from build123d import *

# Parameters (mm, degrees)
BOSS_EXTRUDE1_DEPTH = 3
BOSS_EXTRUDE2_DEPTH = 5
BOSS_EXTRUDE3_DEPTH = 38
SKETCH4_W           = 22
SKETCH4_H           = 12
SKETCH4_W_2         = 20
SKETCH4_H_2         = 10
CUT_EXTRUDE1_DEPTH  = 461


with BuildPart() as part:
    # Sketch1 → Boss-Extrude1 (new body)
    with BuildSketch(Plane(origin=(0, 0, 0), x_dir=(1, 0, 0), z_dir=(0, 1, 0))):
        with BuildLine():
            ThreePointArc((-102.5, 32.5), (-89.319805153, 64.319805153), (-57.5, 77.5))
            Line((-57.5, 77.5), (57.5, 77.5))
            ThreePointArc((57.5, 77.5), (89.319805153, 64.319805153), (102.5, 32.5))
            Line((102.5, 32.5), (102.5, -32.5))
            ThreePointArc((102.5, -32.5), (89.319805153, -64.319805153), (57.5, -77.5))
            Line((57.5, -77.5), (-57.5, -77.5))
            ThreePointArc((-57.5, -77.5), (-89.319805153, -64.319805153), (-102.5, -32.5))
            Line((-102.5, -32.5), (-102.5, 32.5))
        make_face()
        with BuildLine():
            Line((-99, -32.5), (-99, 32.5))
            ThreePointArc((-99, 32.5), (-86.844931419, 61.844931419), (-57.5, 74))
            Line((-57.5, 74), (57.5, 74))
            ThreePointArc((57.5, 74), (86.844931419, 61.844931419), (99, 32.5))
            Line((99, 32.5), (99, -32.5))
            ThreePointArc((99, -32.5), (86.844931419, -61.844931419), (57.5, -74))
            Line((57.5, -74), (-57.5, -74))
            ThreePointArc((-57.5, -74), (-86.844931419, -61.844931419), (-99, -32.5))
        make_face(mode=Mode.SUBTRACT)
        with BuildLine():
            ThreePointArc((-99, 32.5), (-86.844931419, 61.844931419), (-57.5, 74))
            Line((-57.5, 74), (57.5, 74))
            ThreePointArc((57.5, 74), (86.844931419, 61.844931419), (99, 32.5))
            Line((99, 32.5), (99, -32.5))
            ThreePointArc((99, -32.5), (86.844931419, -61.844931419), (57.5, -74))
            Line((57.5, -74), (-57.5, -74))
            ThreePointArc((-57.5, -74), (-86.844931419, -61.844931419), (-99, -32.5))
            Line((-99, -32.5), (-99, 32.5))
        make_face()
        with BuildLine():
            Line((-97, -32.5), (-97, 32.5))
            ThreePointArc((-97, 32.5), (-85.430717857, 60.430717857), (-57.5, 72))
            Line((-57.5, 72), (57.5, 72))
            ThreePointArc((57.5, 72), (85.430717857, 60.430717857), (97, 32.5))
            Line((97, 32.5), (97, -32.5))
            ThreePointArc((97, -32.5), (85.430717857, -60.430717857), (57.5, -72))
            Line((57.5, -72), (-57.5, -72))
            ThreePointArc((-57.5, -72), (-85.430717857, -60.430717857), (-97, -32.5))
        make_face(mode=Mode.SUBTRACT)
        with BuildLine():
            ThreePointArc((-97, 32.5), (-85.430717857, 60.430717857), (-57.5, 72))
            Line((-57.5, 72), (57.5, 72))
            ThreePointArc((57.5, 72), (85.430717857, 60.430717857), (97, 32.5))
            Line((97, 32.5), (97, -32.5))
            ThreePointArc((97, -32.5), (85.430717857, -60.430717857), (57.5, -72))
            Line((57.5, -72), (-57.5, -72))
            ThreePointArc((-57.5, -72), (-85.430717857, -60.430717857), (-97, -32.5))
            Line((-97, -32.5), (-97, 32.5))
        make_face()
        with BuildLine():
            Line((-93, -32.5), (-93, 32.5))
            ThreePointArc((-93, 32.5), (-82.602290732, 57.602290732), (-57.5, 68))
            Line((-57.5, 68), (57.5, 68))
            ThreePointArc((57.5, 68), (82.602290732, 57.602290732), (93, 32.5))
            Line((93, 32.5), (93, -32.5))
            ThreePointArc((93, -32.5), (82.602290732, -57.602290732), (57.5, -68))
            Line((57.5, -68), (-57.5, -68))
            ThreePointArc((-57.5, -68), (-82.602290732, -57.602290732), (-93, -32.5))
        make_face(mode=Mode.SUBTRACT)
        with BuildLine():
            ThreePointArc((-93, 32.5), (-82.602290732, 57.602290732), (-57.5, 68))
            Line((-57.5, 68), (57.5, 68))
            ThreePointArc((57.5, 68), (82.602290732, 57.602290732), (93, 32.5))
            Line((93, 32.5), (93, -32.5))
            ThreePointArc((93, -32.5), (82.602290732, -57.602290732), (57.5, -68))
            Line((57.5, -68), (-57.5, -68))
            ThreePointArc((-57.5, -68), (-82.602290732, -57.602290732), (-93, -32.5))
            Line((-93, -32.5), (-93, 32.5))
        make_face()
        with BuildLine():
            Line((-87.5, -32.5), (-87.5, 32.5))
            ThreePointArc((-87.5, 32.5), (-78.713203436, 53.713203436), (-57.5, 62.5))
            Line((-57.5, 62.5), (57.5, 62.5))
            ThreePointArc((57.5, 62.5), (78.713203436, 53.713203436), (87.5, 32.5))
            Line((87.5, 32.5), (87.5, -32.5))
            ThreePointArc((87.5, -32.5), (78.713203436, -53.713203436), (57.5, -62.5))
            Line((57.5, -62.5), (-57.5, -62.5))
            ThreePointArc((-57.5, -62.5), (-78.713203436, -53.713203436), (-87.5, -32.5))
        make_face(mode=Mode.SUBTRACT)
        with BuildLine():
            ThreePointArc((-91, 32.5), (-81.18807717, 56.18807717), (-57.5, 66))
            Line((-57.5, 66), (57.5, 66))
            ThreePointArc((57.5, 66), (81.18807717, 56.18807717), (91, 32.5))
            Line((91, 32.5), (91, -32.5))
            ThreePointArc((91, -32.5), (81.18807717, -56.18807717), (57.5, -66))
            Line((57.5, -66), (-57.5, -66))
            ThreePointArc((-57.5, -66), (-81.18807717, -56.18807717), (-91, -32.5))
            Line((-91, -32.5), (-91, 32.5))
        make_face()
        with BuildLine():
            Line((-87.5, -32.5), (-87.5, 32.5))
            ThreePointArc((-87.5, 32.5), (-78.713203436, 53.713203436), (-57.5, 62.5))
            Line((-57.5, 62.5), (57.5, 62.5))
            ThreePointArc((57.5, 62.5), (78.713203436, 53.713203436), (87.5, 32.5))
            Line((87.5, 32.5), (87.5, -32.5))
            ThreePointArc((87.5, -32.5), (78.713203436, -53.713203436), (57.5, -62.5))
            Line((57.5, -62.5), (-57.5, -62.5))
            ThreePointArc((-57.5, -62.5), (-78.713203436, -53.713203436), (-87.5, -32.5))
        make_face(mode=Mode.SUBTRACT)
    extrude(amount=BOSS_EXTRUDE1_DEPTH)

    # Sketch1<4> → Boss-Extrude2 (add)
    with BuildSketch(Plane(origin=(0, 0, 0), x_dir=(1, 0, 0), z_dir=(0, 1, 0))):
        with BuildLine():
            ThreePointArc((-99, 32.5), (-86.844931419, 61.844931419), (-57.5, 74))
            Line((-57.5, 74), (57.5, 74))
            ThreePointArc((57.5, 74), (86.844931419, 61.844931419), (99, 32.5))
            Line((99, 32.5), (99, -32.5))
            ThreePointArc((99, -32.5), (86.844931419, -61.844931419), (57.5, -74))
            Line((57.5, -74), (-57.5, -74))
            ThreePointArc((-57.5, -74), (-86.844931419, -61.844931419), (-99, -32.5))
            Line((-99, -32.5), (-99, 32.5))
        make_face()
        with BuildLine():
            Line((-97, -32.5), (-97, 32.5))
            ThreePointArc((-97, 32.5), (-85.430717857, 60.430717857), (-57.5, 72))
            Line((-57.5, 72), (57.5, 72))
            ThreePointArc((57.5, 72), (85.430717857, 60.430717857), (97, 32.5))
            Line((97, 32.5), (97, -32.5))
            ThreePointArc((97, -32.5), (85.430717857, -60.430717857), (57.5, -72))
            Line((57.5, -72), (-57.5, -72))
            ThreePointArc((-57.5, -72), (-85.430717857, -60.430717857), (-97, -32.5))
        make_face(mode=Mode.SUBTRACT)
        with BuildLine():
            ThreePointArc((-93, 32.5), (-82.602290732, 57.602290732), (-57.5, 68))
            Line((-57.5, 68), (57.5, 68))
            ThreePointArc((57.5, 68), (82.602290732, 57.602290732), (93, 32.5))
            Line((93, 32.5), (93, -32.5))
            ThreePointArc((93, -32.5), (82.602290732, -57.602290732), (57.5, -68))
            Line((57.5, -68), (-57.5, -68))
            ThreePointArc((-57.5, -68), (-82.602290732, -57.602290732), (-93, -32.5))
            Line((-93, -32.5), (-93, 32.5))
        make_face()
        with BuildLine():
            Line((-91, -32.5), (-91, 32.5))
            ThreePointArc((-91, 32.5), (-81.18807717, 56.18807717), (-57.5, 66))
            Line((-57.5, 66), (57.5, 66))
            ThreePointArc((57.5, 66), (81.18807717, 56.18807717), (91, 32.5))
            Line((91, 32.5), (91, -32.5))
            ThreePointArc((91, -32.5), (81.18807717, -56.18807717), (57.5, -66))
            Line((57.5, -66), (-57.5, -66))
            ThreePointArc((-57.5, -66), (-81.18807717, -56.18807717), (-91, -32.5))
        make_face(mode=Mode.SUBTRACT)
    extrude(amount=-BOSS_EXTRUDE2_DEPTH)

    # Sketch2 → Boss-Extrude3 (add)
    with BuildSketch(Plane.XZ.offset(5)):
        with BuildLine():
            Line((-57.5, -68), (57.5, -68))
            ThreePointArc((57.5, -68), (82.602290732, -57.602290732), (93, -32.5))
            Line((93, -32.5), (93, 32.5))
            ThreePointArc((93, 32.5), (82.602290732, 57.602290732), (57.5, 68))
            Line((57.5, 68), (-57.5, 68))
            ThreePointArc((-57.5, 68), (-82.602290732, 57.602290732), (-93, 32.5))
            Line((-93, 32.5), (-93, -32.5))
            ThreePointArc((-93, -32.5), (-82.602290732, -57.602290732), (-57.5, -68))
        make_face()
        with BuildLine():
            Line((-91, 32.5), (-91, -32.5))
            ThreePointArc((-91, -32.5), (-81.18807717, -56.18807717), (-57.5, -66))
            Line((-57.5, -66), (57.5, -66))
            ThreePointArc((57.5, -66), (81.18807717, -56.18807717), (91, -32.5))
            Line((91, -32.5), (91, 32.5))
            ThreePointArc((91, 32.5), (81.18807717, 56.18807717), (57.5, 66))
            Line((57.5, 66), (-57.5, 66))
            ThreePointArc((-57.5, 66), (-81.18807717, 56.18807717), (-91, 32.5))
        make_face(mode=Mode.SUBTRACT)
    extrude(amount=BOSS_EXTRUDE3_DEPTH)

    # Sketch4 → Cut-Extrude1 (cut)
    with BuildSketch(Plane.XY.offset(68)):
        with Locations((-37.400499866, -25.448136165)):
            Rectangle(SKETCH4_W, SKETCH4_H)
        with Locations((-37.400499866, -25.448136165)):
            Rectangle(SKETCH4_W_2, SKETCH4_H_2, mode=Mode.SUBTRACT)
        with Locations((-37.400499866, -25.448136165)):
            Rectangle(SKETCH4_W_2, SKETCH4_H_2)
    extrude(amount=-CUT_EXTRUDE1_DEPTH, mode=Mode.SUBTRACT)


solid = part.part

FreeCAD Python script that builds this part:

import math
import FreeCAD as App
import Part
import Sketcher

V = App.Vector
Q = App.Units.Quantity

doc = App.newDocument("Part")
params = doc.addObject("Spreadsheet::Sheet", "Params")
for row, (alias, value) in enumerate([
    ("sketch1_radius", "45 mm"),
    ("sketch1_radius2", "30 mm"),
    ("sketch1_width", "115 mm"),
    ("sketch1_height", "65 mm"),
    ("pad1_length", "3 mm"),
    ("sketch2_radius", "41.5 mm"),
    ("sketch2_radius2", "39.5 mm"),
    ("sketch2_radius3", "35.5 mm"),
    ("sketch2_radius4", "33.5 mm"),
    ("sketch2_width", "115 mm"),
    ("pad2_length", "5 mm"),
    ("sketch3_radius", "35.5 mm"),
    ("sketch3_radius2", "33.5 mm"),
    ("sketch3_width", "115 mm"),
    ("sketch3_height", "65 mm"),
    ("pad3_length", "38 mm"),
    ("sketch4_width", "22 mm"),
    ("sketch4_height", "12 mm"),
    ("pocket1_length", "461 mm"),
], start=1):
    params.set(f"A{row}", alias)
    params.set(f"B{row}", "=" + value)
    params.setAlias(f"B{row}", alias)

body = doc.addObject("PartDesign::Body", "Body")

# Sketch on XZ plane
sketch1 = body.newObject("Sketcher::SketchObject", "Sketch")
sketch1.AttachmentSupport = (doc.getObject("XZ_Plane"), [""])
sketch1.MapMode = "FlatFace"
sketch1.addGeometry([
    Part.ArcOfCircle(Part.Circle(V(-57, -32, 0), V(0, 0, 1), 45), math.radians(-180), math.radians(-90)),  # 0
    Part.LineSegment(V(-102, -32, 0), V(-102, 32, 0)),  # 1
    Part.ArcOfCircle(Part.Circle(V(-57, 32, 0), V(0, 0, 1), 45), math.radians(90), math.radians(180)),  # 2
    Part.LineSegment(V(-58, 78, 0), V(58, 78, 0)),  # 3
    Part.ArcOfCircle(Part.Circle(V(57, 32, 0), V(0, 0, 1), 45), math.radians(0), math.radians(90)),  # 4
    Part.LineSegment(V(102, 32, 0), V(102, -32, 0)),  # 5
    Part.ArcOfCircle(Part.Circle(V(57, -32, 0), V(0, 0, 1), 45), math.radians(-90), math.radians(0)),  # 6
    Part.LineSegment(V(58, -78, 0), V(-58, -78, 0)),  # 7
    Part.LineSegment(V(-88, 32, 0), V(-88, -32, 0)),  # 8
    Part.ArcOfCircle(Part.Circle(V(-58, -33, 0), V(0, 0, 1), 30), math.radians(180), math.radians(270)),  # 9
    Part.LineSegment(V(-58, -62, 0), V(58, -62, 0)),  # 10
    Part.ArcOfCircle(Part.Circle(V(58, -33, 0), V(0, 0, 1), 30), math.radians(-90), math.radians(0)),  # 11
    Part.LineSegment(V(88, -32, 0), V(88, 32, 0)),  # 12
    Part.ArcOfCircle(Part.Circle(V(58, 33, 0), V(0, 0, 1), 30), math.radians(0), math.radians(90)),  # 13
    Part.LineSegment(V(58, 62, 0), V(-58, 62, 0)),  # 14
    Part.ArcOfCircle(Part.Circle(V(-58, 33, 0), V(0, 0, 1), 30), math.radians(90), math.radians(180)),  # 15
], False)
sketch1.addConstraint([
    Sketcher.Constraint("Tangent", 0, 1, 1, 1),
    Sketcher.Constraint("Tangent", 1, 2, 2, 2),
    Sketcher.Constraint("Tangent", 2, 1, 3, 1),
    Sketcher.Constraint("Tangent", 3, 2, 4, 2),
    Sketcher.Constraint("Tangent", 4, 1, 5, 1),
    Sketcher.Constraint("Tangent", 5, 2, 6, 2),
    Sketcher.Constraint("Tangent", 6, 1, 7, 1),
    Sketcher.Constraint("Tangent", 7, 2, 0, 2),
    Sketcher.Constraint("Tangent", 8, 2, 9, 1),
    Sketcher.Constraint("Tangent", 9, 2, 10, 1),
    Sketcher.Constraint("Tangent", 10, 2, 11, 1),
    Sketcher.Constraint("Tangent", 11, 2, 12, 1),
    Sketcher.Constraint("Tangent", 12, 2, 13, 1),
    Sketcher.Constraint("Tangent", 13, 2, 14, 1),
    Sketcher.Constraint("Tangent", 14, 2, 15, 1),
    Sketcher.Constraint("Tangent", 15, 2, 8, 1),
    Sketcher.Constraint("Vertical", 1),
    Sketcher.Constraint("Horizontal", 3),
    Sketcher.Constraint("Vertical", 5),
    Sketcher.Constraint("Horizontal", 7),
    Sketcher.Constraint("Vertical", 8),
    Sketcher.Constraint("Horizontal", 10),
    Sketcher.Constraint("Vertical", 12),
    Sketcher.Constraint("Horizontal", 14),
    Sketcher.Constraint("Coincident", 9, 3, 0, 3),
    Sketcher.Constraint("Coincident", 11, 3, 6, 3),
    Sketcher.Constraint("Coincident", 13, 3, 4, 3),
    Sketcher.Constraint("Equal", 0, 2),
    Sketcher.Constraint("Equal", 2, 4),
    Sketcher.Constraint("Equal", 4, 6),
    Sketcher.Constraint("Equal", 13, 15),
    Sketcher.Constraint("Symmetric", 0, 3, 4, 3, -1, 1),
    Sketcher.Constraint("Radius", 0, Q("45 mm")),
    Sketcher.Constraint("Radius", 9, Q("30 mm")),
    Sketcher.Constraint("DistanceX", 3, 1, 3, 2, Q("115 mm")),
    Sketcher.Constraint("DistanceY", 1, 1, 1, 2, Q("65 mm")),
])
sketch1.setExpression("Constraints[32]", "Params.sketch1_radius")
sketch1.setExpression("Constraints[33]", "Params.sketch1_radius2")
sketch1.setExpression("Constraints[34]", "Params.sketch1_width")
sketch1.setExpression("Constraints[35]", "Params.sketch1_height")
pad1 = body.newObject("PartDesign::Pad", "Pad")
pad1.Profile = sketch1
pad1.setExpression("Length", "Params.pad1_length")
pad1.Reversed = True

# Sketch on XZ plane
sketch2 = body.newObject("Sketcher::SketchObject", "Sketch001")
sketch2.AttachmentSupport = (doc.getObject("XZ_Plane"), [""])
sketch2.MapMode = "FlatFace"
sketch2.addGeometry([
    Part.ArcOfCircle(Part.Circle(V(-57, -32, 0), V(0, 0, 1), 42), math.radians(-180), math.radians(-90)),  # 0
    Part.LineSegment(V(-99, -32, 0), V(-99, 32, 0)),  # 1
    Part.ArcOfCircle(Part.Circle(V(-57, 32, 0), V(0, 0, 1), 42), math.radians(90), math.radians(180)),  # 2
    Part.LineSegment(V(-58, 74, 0), V(58, 74, 0)),  # 3
    Part.ArcOfCircle(Part.Circle(V(57, 32, 0), V(0, 0, 1), 42), math.radians(0), math.radians(90)),  # 4
    Part.LineSegment(V(99, 32, 0), V(99, -32, 0)),  # 5
    Part.ArcOfCircle(Part.Circle(V(57, -32, 0), V(0, 0, 1), 42), math.radians(-90), math.radians(0)),  # 6
    Part.LineSegment(V(58, -74, 0), V(-58, -74, 0)),  # 7
    Part.LineSegment(V(-97, 32, 0), V(-97, -32, 0)),  # 8
    Part.ArcOfCircle(Part.Circle(V(-58, -32, 0), V(0, 0, 1), 40), math.radians(180), math.radians(270)),  # 9
    Part.LineSegment(V(-58, -72, 0), V(58, -72, 0)),  # 10
    Part.ArcOfCircle(Part.Circle(V(58, -32, 0), V(0, 0, 1), 40), math.radians(-90), math.radians(0)),  # 11
    Part.LineSegment(V(97, -32, 0), V(97, 32, 0)),  # 12
    Part.ArcOfCircle(Part.Circle(V(58, 32, 0), V(0, 0, 1), 40), math.radians(0), math.radians(90)),  # 13
    Part.LineSegment(V(58, 72, 0), V(-58, 72, 0)),  # 14
    Part.ArcOfCircle(Part.Circle(V(-58, 32, 0), V(0, 0, 1), 40), math.radians(90), math.radians(180)),  # 15
    Part.ArcOfCircle(Part.Circle(V(-58, -32, 0), V(0, 0, 1), 36), math.radians(180), math.radians(270)),  # 16
    Part.LineSegment(V(-93, -32, 0), V(-93, 32, 0)),  # 17
    Part.ArcOfCircle(Part.Circle(V(-58, 32, 0), V(0, 0, 1), 36), math.radians(90), math.radians(180)),  # 18
    Part.LineSegment(V(-58, 68, 0), V(58, 68, 0)),  # 19
    Part.ArcOfCircle(Part.Circle(V(58, 32, 0), V(0, 0, 1), 36), math.radians(0), math.radians(90)),  # 20
    Part.LineSegment(V(93, 32, 0), V(93, -32, 0)),  # 21
    Part.ArcOfCircle(Part.Circle(V(58, -32, 0), V(0, 0, 1), 36), math.radians(-90), math.radians(0)),  # 22
    Part.LineSegment(V(58, -68, 0), V(-58, -68, 0)),  # 23
    Part.LineSegment(V(-91, 32, 0), V(-91, -32, 0)),  # 24
    Part.ArcOfCircle(Part.Circle(V(-58, -33, 0), V(0, 0, 1), 33), math.radians(180), math.radians(270)),  # 25
    Part.LineSegment(V(-58, -66, 0), V(58, -66, 0)),  # 26
    Part.ArcOfCircle(Part.Circle(V(58, -33, 0), V(0, 0, 1), 33), math.radians(-90), math.radians(0)),  # 27
    Part.LineSegment(V(91, -32, 0), V(91, 32, 0)),  # 28
    Part.ArcOfCircle(Part.Circle(V(58, 33, 0), V(0, 0, 1), 33), math.radians(0), math.radians(90)),  # 29
    Part.LineSegment(V(58, 66, 0), V(-58, 66, 0)),  # 30
    Part.ArcOfCircle(Part.Circle(V(-58, 33, 0), V(0, 0, 1), 33), math.radians(90), math.radians(180)),  # 31
], False)
sketch2.addConstraint([
    Sketcher.Constraint("Tangent", 0, 1, 1, 1),
    Sketcher.Constraint("Tangent", 1, 2, 2, 2),
    Sketcher.Constraint("Tangent", 2, 1, 3, 1),
    Sketcher.Constraint("Tangent", 3, 2, 4, 2),
    Sketcher.Constraint("Tangent", 4, 1, 5, 1),
    Sketcher.Constraint("Tangent", 5, 2, 6, 2),
    Sketcher.Constraint("Tangent", 6, 1, 7, 1),
    Sketcher.Constraint("Tangent", 7, 2, 0, 2),
    Sketcher.Constraint("Tangent", 8, 2, 9, 1),
    Sketcher.Constraint("Tangent", 9, 2, 10, 1),
    Sketcher.Constraint("Tangent", 10, 2, 11, 1),
    Sketcher.Constraint("Tangent", 11, 2, 12, 1),
    Sketcher.Constraint("Tangent", 12, 2, 13, 1),
    Sketcher.Constraint("Tangent", 13, 2, 14, 1),
    Sketcher.Constraint("Tangent", 14, 2, 15, 1),
    Sketcher.Constraint("Tangent", 15, 2, 8, 1),
    Sketcher.Constraint("Tangent", 16, 1, 17, 1),
    Sketcher.Constraint("Tangent", 17, 2, 18, 2),
    Sketcher.Constraint("Tangent", 18, 1, 19, 1),
    Sketcher.Constraint("Tangent", 19, 2, 20, 2),
    Sketcher.Constraint("Tangent", 20, 1, 21, 1),
    Sketcher.Constraint("Tangent", 21, 2, 22, 2),
    Sketcher.Constraint("Tangent", 22, 1, 23, 1),
    Sketcher.Constraint("Tangent", 23, 2, 16, 2),
    Sketcher.Constraint("Tangent", 24, 2, 25, 1),
    Sketcher.Constraint("Tangent", 25, 2, 26, 1),
    Sketcher.Constraint("Tangent", 26, 2, 27, 1),
    Sketcher.Constraint("Tangent", 27, 2, 28, 1),
    Sketcher.Constraint("Tangent", 28, 2, 29, 1),
    Sketcher.Constraint("Tangent", 29, 2, 30, 1),
    Sketcher.Constraint("Tangent", 30, 2, 31, 1),
    Sketcher.Constraint("Tangent", 31, 2, 24, 1),
    Sketcher.Constraint("Vertical", 1),
    Sketcher.Constraint("Horizontal", 3),
    Sketcher.Constraint("Vertical", 5),
    Sketcher.Constraint("Horizontal", 7),
    Sketcher.Constraint("Vertical", 8),
    Sketcher.Constraint("Horizontal", 10),
    Sketcher.Constraint("Vertical", 12),
    Sketcher.Constraint("Horizontal", 14),
    Sketcher.Constraint("Vertical", 17),
    Sketcher.Constraint("Horizontal", 19),
    Sketcher.Constraint("Vertical", 21),
    Sketcher.Constraint("Horizontal", 23),
    Sketcher.Constraint("Vertical", 24),
    Sketcher.Constraint("Horizontal", 26),
    Sketcher.Constraint("Vertical", 28),
    Sketcher.Constraint("Horizontal", 30),
    Sketcher.Constraint("Coincident", 9, 3, 0, 3),
    Sketcher.Constraint("Coincident", 11, 3, 6, 3),
    Sketcher.Constraint("Coincident", 13, 3, 4, 3),
    Sketcher.Constraint("Coincident", 16, 3, 0, 3),
    Sketcher.Constraint("Coincident", 18, 3, 2, 3),
    Sketcher.Constraint("Coincident", 20, 3, 4, 3),
    Sketcher.Constraint("Coincident", 25, 3, 0, 3),
    Sketcher.Constraint("Coincident", 27, 3, 6, 3),
    Sketcher.Constraint("Coincident", 29, 3, 4, 3),
    Sketcher.Constraint("Equal", 0, 2),
    Sketcher.Constraint("Equal", 2, 4),
    Sketcher.Constraint("Equal", 4, 6),
    Sketcher.Constraint("Equal", 13, 15),
    Sketcher.Constraint("Equal", 20, 22),
    Sketcher.Constraint("Equal", 29, 31),
    Sketcher.Constraint("Symmetric", 0, 3, 4, 3, -1, 1),
    Sketcher.Constraint("Radius", 0, Q("41.5 mm")),
    Sketcher.Constraint("Radius", 9, Q("39.5 mm")),
    Sketcher.Constraint("Radius", 16, Q("35.5 mm")),
    Sketcher.Constraint("Radius", 25, Q("33.5 mm")),
    Sketcher.Constraint("DistanceX", 3, 1, 3, 2, Q("115 mm")),
    Sketcher.Constraint("DistanceY", 1, 1, 1, 2, Q("65 mm")),
])
sketch2.setExpression("Constraints[64]", "Params.sketch2_radius")
sketch2.setExpression("Constraints[65]", "Params.sketch2_radius2")
sketch2.setExpression("Constraints[66]", "Params.sketch2_radius3")
sketch2.setExpression("Constraints[67]", "Params.sketch2_radius4")
sketch2.setExpression("Constraints[68]", "Params.sketch2_width")
pad2 = body.newObject("PartDesign::Pad", "Pad001")
pad2.Profile = sketch2
pad2.setExpression("Length", "Params.pad2_length")

# Sketch on XZ plane
sketch3 = body.newObject("Sketcher::SketchObject", "Sketch002")
sketch3.AttachmentSupport = (doc.getObject("XZ_Plane"), [""])
sketch3.MapMode = "FlatFace"
sketch3.AttachmentOffset = App.Placement(V(0, 0, 5), App.Rotation())
sketch3.addGeometry([
    Part.LineSegment(V(-58, -68, 0), V(58, -68, 0)),  # 0
    Part.ArcOfCircle(Part.Circle(V(58, -32, 0), V(0, 0, 1), 36), math.radians(-90), math.radians(0)),  # 1
    Part.LineSegment(V(93, -32, 0), V(93, 32, 0)),  # 2
    Part.ArcOfCircle(Part.Circle(V(58, 32, 0), V(0, 0, 1), 36), math.radians(0), math.radians(90)),  # 3
    Part.LineSegment(V(58, 68, 0), V(-58, 68, 0)),  # 4
    Part.ArcOfCircle(Part.Circle(V(-58, 32, 0), V(0, 0, 1), 36), math.radians(90), math.radians(180)),  # 5
    Part.LineSegment(V(-93, 32, 0), V(-93, -32, 0)),  # 6
    Part.ArcOfCircle(Part.Circle(V(-58, -32, 0), V(0, 0, 1), 36), math.radians(180), math.radians(270)),  # 7
    Part.LineSegment(V(-91, -32, 0), V(-91, 32, 0)),  # 8
    Part.ArcOfCircle(Part.Circle(V(-58, 33, 0), V(0, 0, 1), 33), math.radians(90), math.radians(180)),  # 9
    Part.LineSegment(V(-58, 66, 0), V(58, 66, 0)),  # 10
    Part.ArcOfCircle(Part.Circle(V(58, 33, 0), V(0, 0, 1), 33), math.radians(0), math.radians(90)),  # 11
    Part.LineSegment(V(91, 32, 0), V(91, -32, 0)),  # 12
    Part.ArcOfCircle(Part.Circle(V(58, -33, 0), V(0, 0, 1), 33), math.radians(-90), math.radians(0)),  # 13
    Part.LineSegment(V(58, -66, 0), V(-58, -66, 0)),  # 14
    Part.ArcOfCircle(Part.Circle(V(-58, -33, 0), V(0, 0, 1), 33), math.radians(180), math.radians(270)),  # 15
], False)
sketch3.addConstraint([
    Sketcher.Constraint("Tangent", 0, 2, 1, 1),
    Sketcher.Constraint("Tangent", 1, 2, 2, 1),
    Sketcher.Constraint("Tangent", 2, 2, 3, 1),
    Sketcher.Constraint("Tangent", 3, 2, 4, 1),
    Sketcher.Constraint("Tangent", 4, 2, 5, 1),
    Sketcher.Constraint("Tangent", 5, 2, 6, 1),
    Sketcher.Constraint("Tangent", 6, 2, 7, 1),
    Sketcher.Constraint("Tangent", 7, 2, 0, 1),
    Sketcher.Constraint("Tangent", 8, 2, 9, 2),
    Sketcher.Constraint("Tangent", 9, 1, 10, 1),
    Sketcher.Constraint("Tangent", 10, 2, 11, 2),
    Sketcher.Constraint("Tangent", 11, 1, 12, 1),
    Sketcher.Constraint("Tangent", 12, 2, 13, 2),
    Sketcher.Constraint("Tangent", 13, 1, 14, 1),
    Sketcher.Constraint("Tangent", 14, 2, 15, 2),
    Sketcher.Constraint("Tangent", 15, 1, 8, 1),
    Sketcher.Constraint("Horizontal", 0),
    Sketcher.Constraint("Vertical", 2),
    Sketcher.Constraint("Horizontal", 4),
    Sketcher.Constraint("Vertical", 6),
    Sketcher.Constraint("Vertical", 8),
    Sketcher.Constraint("Horizontal", 10),
    Sketcher.Constraint("Vertical", 12),
    Sketcher.Constraint("Horizontal", 14),
    Sketcher.Constraint("Coincident", 9, 3, 5, 3),
    Sketcher.Constraint("Coincident", 11, 3, 3, 3),
    Sketcher.Constraint("Coincident", 13, 3, 1, 3),
    Sketcher.Constraint("Equal", 1, 3),
    Sketcher.Constraint("Equal", 3, 5),
    Sketcher.Constraint("Equal", 5, 7),
    Sketcher.Constraint("Equal", 13, 15),
    Sketcher.Constraint("Symmetric", 1, 3, 5, 3, -1, 1),
    Sketcher.Constraint("Radius", 1, Q("35.5 mm")),
    Sketcher.Constraint("Radius", 9, Q("33.5 mm")),
    Sketcher.Constraint("DistanceX", 0, 1, 0, 2, Q("115 mm")),
    Sketcher.Constraint("DistanceY", 2, 1, 2, 2, Q("65 mm")),
])
sketch3.setExpression("Constraints[32]", "Params.sketch3_radius")
sketch3.setExpression("Constraints[33]", "Params.sketch3_radius2")
sketch3.setExpression("Constraints[34]", "Params.sketch3_width")
sketch3.setExpression("Constraints[35]", "Params.sketch3_height")
pad3 = body.newObject("PartDesign::Pad", "Pad002")
pad3.Profile = sketch3
pad3.setExpression("Length", "Params.pad3_length")

# Sketch on XY plane
sketch4 = body.newObject("Sketcher::SketchObject", "Sketch003")
sketch4.AttachmentSupport = (doc.getObject("XY_Plane"), [""])
sketch4.MapMode = "FlatFace"
sketch4.AttachmentOffset = App.Placement(V(0, 0, 68), App.Rotation())
sketch4.addGeometry([
    Part.LineSegment(V(-48, -19, 0), V(-48, -31, 0)),
    Part.LineSegment(V(-48, -31, 0), V(-26, -31, 0)),
    Part.LineSegment(V(-26, -31, 0), V(-26, -19, 0)),
    Part.LineSegment(V(-26, -19, 0), V(-48, -19, 0)),
], False)
sketch4.addConstraint([
    Sketcher.Constraint("Coincident", 0, 2, 1, 1),
    Sketcher.Constraint("Coincident", 1, 2, 2, 1),
    Sketcher.Constraint("Coincident", 2, 2, 3, 1),
    Sketcher.Constraint("Coincident", 3, 2, 0, 1),
    Sketcher.Constraint("Vertical", 0),
    Sketcher.Constraint("Horizontal", 1),
    Sketcher.Constraint("Vertical", 2),
    Sketcher.Constraint("Horizontal", 3),
    Sketcher.Constraint("DistanceX", 1, 1, 1, 2, Q("22 mm")),
    Sketcher.Constraint("DistanceY", 0, 2, 0, 1, Q("12 mm")),
    Sketcher.Constraint("DistanceX", 0, 2, -1, 1, Q("48.4005 mm")),
    Sketcher.Constraint("DistanceY", 0, 2, -1, 1, Q("31.448136 mm")),
])
sketch4.setExpression("Constraints[8]", "Params.sketch4_width")
sketch4.setExpression("Constraints[9]", "Params.sketch4_height")
pocket1 = body.newObject("PartDesign::Pocket", "Pocket")
pocket1.Profile = sketch4
pocket1.setExpression("Length", "Params.pocket1_length")

doc.recompute()
